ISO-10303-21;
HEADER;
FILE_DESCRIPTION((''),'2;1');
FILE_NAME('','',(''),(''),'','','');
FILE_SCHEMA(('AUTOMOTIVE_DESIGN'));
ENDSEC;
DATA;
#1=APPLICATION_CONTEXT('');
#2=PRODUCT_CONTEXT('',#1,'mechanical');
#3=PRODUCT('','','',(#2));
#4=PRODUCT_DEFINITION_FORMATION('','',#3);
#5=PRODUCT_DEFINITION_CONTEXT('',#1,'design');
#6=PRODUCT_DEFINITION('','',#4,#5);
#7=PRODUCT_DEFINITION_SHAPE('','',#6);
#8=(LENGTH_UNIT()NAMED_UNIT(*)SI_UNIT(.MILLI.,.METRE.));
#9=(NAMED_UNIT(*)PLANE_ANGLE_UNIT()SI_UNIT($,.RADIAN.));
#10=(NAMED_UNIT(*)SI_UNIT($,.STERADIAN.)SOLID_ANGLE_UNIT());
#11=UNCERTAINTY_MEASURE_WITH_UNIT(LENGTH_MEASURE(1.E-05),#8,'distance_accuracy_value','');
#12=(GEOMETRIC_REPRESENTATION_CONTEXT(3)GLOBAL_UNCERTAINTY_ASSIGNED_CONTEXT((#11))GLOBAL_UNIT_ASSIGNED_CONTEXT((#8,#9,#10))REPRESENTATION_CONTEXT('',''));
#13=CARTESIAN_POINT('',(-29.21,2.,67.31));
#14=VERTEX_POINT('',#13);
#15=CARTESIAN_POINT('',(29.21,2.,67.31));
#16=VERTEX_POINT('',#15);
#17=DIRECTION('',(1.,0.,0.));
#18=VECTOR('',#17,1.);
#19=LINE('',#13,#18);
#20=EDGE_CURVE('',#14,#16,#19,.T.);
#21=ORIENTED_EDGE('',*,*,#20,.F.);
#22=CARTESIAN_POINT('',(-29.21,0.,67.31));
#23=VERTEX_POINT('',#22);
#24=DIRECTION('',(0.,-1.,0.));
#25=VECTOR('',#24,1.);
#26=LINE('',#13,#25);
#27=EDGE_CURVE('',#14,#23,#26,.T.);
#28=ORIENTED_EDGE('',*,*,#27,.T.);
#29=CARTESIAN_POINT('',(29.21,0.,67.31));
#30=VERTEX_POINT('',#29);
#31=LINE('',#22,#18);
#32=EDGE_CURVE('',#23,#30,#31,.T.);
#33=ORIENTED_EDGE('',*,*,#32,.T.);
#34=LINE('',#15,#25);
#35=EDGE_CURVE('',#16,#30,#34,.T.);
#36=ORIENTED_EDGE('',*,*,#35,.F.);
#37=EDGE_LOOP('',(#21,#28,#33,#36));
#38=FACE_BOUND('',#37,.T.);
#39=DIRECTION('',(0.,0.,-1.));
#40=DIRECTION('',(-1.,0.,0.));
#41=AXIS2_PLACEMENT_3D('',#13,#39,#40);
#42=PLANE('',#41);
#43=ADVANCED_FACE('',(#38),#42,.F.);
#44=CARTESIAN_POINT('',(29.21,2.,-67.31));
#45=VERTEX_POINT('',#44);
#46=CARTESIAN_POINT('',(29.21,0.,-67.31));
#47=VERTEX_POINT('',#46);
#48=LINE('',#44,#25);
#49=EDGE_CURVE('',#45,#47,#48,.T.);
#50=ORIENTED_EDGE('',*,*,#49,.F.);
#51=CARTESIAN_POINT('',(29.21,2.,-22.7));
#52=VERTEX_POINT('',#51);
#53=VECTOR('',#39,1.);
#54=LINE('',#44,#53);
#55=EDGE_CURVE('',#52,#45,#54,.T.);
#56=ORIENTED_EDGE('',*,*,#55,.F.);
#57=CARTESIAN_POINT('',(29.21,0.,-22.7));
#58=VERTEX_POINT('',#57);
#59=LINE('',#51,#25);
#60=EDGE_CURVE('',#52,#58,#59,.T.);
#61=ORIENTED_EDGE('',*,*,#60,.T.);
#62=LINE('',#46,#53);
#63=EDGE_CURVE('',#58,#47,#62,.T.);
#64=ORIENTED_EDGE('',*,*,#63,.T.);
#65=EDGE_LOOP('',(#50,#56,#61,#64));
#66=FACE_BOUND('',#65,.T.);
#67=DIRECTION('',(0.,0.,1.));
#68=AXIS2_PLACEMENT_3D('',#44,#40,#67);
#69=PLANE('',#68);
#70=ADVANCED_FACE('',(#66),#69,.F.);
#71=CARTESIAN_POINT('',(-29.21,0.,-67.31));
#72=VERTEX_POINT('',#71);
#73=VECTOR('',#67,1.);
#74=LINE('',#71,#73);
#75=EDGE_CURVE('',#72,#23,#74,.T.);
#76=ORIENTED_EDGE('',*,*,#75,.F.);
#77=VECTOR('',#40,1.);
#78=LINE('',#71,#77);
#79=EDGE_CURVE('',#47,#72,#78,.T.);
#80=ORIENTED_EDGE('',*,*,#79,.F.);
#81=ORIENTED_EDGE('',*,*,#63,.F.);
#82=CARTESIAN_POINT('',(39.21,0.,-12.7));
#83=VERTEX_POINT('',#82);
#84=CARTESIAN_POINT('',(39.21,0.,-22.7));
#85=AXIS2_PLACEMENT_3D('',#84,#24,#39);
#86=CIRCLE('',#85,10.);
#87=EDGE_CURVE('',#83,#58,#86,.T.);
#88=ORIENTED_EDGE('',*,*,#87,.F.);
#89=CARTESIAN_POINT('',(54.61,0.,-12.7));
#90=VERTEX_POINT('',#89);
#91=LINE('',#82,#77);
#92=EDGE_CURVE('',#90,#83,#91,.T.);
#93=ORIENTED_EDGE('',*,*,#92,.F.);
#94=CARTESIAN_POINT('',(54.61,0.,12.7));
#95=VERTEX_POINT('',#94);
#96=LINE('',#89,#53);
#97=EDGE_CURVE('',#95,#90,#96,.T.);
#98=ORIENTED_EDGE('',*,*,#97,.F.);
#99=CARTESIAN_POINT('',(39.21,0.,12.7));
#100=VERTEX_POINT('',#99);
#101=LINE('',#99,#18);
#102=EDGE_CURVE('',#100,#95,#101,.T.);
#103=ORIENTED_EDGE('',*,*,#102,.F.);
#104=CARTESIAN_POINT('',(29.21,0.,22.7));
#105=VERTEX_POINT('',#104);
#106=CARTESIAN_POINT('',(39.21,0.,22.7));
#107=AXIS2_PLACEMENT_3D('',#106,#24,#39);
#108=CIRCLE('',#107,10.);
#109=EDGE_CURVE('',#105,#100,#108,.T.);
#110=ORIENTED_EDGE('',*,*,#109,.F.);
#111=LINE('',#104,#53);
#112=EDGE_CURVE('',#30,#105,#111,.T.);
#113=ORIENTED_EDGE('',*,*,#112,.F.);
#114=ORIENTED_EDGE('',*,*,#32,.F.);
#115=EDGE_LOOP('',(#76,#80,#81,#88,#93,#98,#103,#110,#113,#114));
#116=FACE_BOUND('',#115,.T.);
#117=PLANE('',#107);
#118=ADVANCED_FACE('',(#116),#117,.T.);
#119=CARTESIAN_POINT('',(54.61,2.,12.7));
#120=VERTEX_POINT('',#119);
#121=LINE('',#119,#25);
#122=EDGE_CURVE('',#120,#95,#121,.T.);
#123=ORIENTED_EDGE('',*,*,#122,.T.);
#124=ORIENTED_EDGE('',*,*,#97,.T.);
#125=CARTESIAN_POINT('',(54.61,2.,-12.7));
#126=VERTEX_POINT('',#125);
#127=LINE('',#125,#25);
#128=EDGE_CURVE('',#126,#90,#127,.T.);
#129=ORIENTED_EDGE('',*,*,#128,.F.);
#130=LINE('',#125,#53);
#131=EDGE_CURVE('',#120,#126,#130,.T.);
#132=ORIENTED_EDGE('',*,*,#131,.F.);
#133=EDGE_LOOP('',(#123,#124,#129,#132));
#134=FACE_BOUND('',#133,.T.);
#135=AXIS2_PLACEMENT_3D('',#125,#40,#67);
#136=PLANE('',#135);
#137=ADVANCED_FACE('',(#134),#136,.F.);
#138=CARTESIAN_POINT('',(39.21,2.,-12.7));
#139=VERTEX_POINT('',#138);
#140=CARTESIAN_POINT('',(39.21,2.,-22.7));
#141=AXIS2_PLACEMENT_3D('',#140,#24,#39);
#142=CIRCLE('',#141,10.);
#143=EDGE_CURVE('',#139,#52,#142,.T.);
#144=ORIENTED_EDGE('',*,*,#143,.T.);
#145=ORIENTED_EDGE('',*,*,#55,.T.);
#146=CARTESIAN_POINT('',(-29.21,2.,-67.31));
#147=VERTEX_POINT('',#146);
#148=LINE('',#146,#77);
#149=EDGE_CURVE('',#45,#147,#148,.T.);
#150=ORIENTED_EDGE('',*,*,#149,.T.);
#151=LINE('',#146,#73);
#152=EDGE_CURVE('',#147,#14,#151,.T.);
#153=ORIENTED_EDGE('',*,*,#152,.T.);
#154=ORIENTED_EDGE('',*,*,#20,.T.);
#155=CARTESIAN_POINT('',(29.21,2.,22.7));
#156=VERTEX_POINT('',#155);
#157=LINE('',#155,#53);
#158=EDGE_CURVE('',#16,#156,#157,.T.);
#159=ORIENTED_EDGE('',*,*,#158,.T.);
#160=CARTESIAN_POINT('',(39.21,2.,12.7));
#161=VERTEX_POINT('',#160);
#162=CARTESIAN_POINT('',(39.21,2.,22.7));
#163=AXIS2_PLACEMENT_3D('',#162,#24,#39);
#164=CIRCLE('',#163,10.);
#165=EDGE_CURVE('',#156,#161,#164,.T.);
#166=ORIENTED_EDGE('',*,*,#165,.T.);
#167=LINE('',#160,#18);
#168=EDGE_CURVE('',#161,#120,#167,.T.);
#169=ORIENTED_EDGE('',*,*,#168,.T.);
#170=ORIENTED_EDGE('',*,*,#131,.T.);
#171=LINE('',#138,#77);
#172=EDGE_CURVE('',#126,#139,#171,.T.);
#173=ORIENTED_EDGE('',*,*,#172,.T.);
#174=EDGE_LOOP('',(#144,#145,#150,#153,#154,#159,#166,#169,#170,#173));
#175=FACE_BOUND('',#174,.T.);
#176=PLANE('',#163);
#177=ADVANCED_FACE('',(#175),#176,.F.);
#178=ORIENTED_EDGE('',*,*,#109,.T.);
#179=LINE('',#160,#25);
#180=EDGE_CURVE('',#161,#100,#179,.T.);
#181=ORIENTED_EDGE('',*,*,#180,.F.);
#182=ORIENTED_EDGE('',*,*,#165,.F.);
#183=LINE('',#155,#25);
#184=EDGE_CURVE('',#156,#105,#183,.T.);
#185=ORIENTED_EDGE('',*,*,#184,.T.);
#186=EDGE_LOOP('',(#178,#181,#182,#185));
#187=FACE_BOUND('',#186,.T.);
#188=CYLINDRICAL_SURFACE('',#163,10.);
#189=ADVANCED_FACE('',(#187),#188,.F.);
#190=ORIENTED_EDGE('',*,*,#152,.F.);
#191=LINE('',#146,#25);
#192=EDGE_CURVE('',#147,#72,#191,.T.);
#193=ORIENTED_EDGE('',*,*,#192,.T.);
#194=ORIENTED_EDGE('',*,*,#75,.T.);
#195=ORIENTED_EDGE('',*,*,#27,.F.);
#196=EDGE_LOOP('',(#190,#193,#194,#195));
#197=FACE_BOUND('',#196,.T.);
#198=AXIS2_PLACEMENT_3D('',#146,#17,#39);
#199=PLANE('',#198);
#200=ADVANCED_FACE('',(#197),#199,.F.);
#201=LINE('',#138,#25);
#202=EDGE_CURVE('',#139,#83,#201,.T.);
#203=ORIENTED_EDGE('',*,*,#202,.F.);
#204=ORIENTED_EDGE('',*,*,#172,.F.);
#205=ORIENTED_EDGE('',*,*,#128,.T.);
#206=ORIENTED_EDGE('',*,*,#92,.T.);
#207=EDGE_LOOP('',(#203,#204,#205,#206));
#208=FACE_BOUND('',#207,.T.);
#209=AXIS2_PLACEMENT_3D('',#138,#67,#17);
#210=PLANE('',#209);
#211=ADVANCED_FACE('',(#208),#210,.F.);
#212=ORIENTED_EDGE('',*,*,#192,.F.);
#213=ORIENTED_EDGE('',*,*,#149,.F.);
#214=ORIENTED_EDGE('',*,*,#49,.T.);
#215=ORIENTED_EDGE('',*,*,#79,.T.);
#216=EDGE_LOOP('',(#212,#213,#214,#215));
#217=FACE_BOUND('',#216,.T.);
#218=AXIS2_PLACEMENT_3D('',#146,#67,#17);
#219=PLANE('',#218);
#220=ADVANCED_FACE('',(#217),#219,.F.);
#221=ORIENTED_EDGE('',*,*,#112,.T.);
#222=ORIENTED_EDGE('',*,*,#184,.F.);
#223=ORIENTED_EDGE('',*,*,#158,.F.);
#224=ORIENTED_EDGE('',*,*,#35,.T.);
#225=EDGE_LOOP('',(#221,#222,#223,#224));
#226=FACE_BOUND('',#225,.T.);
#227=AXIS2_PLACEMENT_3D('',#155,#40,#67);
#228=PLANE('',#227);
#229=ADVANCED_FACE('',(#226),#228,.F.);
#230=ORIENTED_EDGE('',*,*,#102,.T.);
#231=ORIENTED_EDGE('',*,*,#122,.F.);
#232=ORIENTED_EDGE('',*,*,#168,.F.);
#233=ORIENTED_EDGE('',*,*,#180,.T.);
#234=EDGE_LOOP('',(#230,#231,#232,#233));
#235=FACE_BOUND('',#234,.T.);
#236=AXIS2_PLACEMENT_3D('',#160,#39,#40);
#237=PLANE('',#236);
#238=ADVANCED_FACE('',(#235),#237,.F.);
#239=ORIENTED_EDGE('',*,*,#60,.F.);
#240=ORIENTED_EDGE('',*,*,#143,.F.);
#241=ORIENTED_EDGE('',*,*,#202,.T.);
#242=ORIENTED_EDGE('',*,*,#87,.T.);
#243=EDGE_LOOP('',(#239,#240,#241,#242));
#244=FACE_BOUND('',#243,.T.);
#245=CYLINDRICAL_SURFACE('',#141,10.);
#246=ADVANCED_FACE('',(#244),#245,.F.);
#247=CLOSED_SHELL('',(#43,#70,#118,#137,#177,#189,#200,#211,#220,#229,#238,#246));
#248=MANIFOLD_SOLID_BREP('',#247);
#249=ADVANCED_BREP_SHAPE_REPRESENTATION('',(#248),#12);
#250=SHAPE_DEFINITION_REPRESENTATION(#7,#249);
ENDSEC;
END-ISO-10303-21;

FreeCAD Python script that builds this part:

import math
import FreeCAD as App
import Part
import Sketcher
from FreeCAD import Vector

doc = App.newDocument("Part")
body = doc.addObject("PartDesign::Body", "Body")

sketch1 = body.newObject("Sketcher::SketchObject", "Sketch")
sketch1.AttachmentSupport = (doc.getObject("XZ_Plane"), [""])
sketch1.MapMode = "FlatFace"
sketch1.addGeometry([
    Part.LineSegment(Vector(29, -67, 0), Vector(-29, -67, 0)),
    Part.LineSegment(Vector(-29, -67, 0), Vector(-29, 67, 0)),
    Part.LineSegment(Vector(-29, 67, 0), Vector(29, 67, 0)),
    Part.LineSegment(Vector(29, 67, 0), Vector(29, 23, 0)),
    Part.ArcOfCircle(Part.Circle(Vector(39, 23, 0), Vector(0, 0, 1), 10), math.radians(180), math.radians(270)),
    Part.LineSegment(Vector(39, 13, 0), Vector(55, 13, 0)),
    Part.LineSegment(Vector(55, 13, 0), Vector(55, -13, 0)),
    Part.LineSegment(Vector(55, -13, 0), Vector(39, -13, 0)),
    Part.ArcOfCircle(Part.Circle(Vector(39, -23, 0), Vector(0, 0, 1), 10), math.radians(90), math.radians(180)),
    Part.LineSegment(Vector(29, -23, 0), Vector(29, -67, 0)),
], False)
sketch1.addConstraint([
    Sketcher.Constraint("Coincident", 0, 2, 1, 1),
    Sketcher.Constraint("Coincident", 1, 2, 2, 1),
    Sketcher.Constraint("Coincident", 2, 2, 3, 1),
    Sketcher.Constraint("Tangent", 3, 2, 4, 1),
    Sketcher.Constraint("Tangent", 4, 2, 5, 1),
    Sketcher.Constraint("Coincident", 5, 2, 6, 1),
    Sketcher.Constraint("Coincident", 6, 2, 7, 1),
    Sketcher.Constraint("Tangent", 7, 2, 8, 1),
    Sketcher.Constraint("Tangent", 8, 2, 9, 1),
    Sketcher.Constraint("Coincident", 9, 2, 0, 1),
    Sketcher.Constraint("Horizontal", 0),
    Sketcher.Constraint("Vertical", 1),
    Sketcher.Constraint("Horizontal", 2),
    Sketcher.Constraint("Vertical", 3),
    Sketcher.Constraint("Horizontal", 5),
    Sketcher.Constraint("Vertical", 6),
    Sketcher.Constraint("Horizontal", 7),
    Sketcher.Constraint("Vertical", 9),
    Sketcher.Constraint("Equal", 4, 8),
    Sketcher.Constraint("Symmetric", 0, 2, 2, 2, -1, 1),
    Sketcher.Constraint("Symmetric", 4, 3, 8, 3, -1),
    Sketcher.Constraint("Radius", 4, 10.0),
    Sketcher.Constraint("DistanceX", 5, 1, 5, 2, 15.4),
    Sketcher.Constraint("DistanceY", 6, 2, 6, 1, 25.4),
    Sketcher.Constraint("DistanceX", 0, 2, 0, 1, 58.42),
    Sketcher.Constraint("DistanceY", 1, 1, 1, 2, 134.62),
])
pad1 = body.newObject("PartDesign::Pad", "Pad")
pad1.Profile = sketch1
pad1.Length = 2
pad1.Reversed = True

doc.recompute()
